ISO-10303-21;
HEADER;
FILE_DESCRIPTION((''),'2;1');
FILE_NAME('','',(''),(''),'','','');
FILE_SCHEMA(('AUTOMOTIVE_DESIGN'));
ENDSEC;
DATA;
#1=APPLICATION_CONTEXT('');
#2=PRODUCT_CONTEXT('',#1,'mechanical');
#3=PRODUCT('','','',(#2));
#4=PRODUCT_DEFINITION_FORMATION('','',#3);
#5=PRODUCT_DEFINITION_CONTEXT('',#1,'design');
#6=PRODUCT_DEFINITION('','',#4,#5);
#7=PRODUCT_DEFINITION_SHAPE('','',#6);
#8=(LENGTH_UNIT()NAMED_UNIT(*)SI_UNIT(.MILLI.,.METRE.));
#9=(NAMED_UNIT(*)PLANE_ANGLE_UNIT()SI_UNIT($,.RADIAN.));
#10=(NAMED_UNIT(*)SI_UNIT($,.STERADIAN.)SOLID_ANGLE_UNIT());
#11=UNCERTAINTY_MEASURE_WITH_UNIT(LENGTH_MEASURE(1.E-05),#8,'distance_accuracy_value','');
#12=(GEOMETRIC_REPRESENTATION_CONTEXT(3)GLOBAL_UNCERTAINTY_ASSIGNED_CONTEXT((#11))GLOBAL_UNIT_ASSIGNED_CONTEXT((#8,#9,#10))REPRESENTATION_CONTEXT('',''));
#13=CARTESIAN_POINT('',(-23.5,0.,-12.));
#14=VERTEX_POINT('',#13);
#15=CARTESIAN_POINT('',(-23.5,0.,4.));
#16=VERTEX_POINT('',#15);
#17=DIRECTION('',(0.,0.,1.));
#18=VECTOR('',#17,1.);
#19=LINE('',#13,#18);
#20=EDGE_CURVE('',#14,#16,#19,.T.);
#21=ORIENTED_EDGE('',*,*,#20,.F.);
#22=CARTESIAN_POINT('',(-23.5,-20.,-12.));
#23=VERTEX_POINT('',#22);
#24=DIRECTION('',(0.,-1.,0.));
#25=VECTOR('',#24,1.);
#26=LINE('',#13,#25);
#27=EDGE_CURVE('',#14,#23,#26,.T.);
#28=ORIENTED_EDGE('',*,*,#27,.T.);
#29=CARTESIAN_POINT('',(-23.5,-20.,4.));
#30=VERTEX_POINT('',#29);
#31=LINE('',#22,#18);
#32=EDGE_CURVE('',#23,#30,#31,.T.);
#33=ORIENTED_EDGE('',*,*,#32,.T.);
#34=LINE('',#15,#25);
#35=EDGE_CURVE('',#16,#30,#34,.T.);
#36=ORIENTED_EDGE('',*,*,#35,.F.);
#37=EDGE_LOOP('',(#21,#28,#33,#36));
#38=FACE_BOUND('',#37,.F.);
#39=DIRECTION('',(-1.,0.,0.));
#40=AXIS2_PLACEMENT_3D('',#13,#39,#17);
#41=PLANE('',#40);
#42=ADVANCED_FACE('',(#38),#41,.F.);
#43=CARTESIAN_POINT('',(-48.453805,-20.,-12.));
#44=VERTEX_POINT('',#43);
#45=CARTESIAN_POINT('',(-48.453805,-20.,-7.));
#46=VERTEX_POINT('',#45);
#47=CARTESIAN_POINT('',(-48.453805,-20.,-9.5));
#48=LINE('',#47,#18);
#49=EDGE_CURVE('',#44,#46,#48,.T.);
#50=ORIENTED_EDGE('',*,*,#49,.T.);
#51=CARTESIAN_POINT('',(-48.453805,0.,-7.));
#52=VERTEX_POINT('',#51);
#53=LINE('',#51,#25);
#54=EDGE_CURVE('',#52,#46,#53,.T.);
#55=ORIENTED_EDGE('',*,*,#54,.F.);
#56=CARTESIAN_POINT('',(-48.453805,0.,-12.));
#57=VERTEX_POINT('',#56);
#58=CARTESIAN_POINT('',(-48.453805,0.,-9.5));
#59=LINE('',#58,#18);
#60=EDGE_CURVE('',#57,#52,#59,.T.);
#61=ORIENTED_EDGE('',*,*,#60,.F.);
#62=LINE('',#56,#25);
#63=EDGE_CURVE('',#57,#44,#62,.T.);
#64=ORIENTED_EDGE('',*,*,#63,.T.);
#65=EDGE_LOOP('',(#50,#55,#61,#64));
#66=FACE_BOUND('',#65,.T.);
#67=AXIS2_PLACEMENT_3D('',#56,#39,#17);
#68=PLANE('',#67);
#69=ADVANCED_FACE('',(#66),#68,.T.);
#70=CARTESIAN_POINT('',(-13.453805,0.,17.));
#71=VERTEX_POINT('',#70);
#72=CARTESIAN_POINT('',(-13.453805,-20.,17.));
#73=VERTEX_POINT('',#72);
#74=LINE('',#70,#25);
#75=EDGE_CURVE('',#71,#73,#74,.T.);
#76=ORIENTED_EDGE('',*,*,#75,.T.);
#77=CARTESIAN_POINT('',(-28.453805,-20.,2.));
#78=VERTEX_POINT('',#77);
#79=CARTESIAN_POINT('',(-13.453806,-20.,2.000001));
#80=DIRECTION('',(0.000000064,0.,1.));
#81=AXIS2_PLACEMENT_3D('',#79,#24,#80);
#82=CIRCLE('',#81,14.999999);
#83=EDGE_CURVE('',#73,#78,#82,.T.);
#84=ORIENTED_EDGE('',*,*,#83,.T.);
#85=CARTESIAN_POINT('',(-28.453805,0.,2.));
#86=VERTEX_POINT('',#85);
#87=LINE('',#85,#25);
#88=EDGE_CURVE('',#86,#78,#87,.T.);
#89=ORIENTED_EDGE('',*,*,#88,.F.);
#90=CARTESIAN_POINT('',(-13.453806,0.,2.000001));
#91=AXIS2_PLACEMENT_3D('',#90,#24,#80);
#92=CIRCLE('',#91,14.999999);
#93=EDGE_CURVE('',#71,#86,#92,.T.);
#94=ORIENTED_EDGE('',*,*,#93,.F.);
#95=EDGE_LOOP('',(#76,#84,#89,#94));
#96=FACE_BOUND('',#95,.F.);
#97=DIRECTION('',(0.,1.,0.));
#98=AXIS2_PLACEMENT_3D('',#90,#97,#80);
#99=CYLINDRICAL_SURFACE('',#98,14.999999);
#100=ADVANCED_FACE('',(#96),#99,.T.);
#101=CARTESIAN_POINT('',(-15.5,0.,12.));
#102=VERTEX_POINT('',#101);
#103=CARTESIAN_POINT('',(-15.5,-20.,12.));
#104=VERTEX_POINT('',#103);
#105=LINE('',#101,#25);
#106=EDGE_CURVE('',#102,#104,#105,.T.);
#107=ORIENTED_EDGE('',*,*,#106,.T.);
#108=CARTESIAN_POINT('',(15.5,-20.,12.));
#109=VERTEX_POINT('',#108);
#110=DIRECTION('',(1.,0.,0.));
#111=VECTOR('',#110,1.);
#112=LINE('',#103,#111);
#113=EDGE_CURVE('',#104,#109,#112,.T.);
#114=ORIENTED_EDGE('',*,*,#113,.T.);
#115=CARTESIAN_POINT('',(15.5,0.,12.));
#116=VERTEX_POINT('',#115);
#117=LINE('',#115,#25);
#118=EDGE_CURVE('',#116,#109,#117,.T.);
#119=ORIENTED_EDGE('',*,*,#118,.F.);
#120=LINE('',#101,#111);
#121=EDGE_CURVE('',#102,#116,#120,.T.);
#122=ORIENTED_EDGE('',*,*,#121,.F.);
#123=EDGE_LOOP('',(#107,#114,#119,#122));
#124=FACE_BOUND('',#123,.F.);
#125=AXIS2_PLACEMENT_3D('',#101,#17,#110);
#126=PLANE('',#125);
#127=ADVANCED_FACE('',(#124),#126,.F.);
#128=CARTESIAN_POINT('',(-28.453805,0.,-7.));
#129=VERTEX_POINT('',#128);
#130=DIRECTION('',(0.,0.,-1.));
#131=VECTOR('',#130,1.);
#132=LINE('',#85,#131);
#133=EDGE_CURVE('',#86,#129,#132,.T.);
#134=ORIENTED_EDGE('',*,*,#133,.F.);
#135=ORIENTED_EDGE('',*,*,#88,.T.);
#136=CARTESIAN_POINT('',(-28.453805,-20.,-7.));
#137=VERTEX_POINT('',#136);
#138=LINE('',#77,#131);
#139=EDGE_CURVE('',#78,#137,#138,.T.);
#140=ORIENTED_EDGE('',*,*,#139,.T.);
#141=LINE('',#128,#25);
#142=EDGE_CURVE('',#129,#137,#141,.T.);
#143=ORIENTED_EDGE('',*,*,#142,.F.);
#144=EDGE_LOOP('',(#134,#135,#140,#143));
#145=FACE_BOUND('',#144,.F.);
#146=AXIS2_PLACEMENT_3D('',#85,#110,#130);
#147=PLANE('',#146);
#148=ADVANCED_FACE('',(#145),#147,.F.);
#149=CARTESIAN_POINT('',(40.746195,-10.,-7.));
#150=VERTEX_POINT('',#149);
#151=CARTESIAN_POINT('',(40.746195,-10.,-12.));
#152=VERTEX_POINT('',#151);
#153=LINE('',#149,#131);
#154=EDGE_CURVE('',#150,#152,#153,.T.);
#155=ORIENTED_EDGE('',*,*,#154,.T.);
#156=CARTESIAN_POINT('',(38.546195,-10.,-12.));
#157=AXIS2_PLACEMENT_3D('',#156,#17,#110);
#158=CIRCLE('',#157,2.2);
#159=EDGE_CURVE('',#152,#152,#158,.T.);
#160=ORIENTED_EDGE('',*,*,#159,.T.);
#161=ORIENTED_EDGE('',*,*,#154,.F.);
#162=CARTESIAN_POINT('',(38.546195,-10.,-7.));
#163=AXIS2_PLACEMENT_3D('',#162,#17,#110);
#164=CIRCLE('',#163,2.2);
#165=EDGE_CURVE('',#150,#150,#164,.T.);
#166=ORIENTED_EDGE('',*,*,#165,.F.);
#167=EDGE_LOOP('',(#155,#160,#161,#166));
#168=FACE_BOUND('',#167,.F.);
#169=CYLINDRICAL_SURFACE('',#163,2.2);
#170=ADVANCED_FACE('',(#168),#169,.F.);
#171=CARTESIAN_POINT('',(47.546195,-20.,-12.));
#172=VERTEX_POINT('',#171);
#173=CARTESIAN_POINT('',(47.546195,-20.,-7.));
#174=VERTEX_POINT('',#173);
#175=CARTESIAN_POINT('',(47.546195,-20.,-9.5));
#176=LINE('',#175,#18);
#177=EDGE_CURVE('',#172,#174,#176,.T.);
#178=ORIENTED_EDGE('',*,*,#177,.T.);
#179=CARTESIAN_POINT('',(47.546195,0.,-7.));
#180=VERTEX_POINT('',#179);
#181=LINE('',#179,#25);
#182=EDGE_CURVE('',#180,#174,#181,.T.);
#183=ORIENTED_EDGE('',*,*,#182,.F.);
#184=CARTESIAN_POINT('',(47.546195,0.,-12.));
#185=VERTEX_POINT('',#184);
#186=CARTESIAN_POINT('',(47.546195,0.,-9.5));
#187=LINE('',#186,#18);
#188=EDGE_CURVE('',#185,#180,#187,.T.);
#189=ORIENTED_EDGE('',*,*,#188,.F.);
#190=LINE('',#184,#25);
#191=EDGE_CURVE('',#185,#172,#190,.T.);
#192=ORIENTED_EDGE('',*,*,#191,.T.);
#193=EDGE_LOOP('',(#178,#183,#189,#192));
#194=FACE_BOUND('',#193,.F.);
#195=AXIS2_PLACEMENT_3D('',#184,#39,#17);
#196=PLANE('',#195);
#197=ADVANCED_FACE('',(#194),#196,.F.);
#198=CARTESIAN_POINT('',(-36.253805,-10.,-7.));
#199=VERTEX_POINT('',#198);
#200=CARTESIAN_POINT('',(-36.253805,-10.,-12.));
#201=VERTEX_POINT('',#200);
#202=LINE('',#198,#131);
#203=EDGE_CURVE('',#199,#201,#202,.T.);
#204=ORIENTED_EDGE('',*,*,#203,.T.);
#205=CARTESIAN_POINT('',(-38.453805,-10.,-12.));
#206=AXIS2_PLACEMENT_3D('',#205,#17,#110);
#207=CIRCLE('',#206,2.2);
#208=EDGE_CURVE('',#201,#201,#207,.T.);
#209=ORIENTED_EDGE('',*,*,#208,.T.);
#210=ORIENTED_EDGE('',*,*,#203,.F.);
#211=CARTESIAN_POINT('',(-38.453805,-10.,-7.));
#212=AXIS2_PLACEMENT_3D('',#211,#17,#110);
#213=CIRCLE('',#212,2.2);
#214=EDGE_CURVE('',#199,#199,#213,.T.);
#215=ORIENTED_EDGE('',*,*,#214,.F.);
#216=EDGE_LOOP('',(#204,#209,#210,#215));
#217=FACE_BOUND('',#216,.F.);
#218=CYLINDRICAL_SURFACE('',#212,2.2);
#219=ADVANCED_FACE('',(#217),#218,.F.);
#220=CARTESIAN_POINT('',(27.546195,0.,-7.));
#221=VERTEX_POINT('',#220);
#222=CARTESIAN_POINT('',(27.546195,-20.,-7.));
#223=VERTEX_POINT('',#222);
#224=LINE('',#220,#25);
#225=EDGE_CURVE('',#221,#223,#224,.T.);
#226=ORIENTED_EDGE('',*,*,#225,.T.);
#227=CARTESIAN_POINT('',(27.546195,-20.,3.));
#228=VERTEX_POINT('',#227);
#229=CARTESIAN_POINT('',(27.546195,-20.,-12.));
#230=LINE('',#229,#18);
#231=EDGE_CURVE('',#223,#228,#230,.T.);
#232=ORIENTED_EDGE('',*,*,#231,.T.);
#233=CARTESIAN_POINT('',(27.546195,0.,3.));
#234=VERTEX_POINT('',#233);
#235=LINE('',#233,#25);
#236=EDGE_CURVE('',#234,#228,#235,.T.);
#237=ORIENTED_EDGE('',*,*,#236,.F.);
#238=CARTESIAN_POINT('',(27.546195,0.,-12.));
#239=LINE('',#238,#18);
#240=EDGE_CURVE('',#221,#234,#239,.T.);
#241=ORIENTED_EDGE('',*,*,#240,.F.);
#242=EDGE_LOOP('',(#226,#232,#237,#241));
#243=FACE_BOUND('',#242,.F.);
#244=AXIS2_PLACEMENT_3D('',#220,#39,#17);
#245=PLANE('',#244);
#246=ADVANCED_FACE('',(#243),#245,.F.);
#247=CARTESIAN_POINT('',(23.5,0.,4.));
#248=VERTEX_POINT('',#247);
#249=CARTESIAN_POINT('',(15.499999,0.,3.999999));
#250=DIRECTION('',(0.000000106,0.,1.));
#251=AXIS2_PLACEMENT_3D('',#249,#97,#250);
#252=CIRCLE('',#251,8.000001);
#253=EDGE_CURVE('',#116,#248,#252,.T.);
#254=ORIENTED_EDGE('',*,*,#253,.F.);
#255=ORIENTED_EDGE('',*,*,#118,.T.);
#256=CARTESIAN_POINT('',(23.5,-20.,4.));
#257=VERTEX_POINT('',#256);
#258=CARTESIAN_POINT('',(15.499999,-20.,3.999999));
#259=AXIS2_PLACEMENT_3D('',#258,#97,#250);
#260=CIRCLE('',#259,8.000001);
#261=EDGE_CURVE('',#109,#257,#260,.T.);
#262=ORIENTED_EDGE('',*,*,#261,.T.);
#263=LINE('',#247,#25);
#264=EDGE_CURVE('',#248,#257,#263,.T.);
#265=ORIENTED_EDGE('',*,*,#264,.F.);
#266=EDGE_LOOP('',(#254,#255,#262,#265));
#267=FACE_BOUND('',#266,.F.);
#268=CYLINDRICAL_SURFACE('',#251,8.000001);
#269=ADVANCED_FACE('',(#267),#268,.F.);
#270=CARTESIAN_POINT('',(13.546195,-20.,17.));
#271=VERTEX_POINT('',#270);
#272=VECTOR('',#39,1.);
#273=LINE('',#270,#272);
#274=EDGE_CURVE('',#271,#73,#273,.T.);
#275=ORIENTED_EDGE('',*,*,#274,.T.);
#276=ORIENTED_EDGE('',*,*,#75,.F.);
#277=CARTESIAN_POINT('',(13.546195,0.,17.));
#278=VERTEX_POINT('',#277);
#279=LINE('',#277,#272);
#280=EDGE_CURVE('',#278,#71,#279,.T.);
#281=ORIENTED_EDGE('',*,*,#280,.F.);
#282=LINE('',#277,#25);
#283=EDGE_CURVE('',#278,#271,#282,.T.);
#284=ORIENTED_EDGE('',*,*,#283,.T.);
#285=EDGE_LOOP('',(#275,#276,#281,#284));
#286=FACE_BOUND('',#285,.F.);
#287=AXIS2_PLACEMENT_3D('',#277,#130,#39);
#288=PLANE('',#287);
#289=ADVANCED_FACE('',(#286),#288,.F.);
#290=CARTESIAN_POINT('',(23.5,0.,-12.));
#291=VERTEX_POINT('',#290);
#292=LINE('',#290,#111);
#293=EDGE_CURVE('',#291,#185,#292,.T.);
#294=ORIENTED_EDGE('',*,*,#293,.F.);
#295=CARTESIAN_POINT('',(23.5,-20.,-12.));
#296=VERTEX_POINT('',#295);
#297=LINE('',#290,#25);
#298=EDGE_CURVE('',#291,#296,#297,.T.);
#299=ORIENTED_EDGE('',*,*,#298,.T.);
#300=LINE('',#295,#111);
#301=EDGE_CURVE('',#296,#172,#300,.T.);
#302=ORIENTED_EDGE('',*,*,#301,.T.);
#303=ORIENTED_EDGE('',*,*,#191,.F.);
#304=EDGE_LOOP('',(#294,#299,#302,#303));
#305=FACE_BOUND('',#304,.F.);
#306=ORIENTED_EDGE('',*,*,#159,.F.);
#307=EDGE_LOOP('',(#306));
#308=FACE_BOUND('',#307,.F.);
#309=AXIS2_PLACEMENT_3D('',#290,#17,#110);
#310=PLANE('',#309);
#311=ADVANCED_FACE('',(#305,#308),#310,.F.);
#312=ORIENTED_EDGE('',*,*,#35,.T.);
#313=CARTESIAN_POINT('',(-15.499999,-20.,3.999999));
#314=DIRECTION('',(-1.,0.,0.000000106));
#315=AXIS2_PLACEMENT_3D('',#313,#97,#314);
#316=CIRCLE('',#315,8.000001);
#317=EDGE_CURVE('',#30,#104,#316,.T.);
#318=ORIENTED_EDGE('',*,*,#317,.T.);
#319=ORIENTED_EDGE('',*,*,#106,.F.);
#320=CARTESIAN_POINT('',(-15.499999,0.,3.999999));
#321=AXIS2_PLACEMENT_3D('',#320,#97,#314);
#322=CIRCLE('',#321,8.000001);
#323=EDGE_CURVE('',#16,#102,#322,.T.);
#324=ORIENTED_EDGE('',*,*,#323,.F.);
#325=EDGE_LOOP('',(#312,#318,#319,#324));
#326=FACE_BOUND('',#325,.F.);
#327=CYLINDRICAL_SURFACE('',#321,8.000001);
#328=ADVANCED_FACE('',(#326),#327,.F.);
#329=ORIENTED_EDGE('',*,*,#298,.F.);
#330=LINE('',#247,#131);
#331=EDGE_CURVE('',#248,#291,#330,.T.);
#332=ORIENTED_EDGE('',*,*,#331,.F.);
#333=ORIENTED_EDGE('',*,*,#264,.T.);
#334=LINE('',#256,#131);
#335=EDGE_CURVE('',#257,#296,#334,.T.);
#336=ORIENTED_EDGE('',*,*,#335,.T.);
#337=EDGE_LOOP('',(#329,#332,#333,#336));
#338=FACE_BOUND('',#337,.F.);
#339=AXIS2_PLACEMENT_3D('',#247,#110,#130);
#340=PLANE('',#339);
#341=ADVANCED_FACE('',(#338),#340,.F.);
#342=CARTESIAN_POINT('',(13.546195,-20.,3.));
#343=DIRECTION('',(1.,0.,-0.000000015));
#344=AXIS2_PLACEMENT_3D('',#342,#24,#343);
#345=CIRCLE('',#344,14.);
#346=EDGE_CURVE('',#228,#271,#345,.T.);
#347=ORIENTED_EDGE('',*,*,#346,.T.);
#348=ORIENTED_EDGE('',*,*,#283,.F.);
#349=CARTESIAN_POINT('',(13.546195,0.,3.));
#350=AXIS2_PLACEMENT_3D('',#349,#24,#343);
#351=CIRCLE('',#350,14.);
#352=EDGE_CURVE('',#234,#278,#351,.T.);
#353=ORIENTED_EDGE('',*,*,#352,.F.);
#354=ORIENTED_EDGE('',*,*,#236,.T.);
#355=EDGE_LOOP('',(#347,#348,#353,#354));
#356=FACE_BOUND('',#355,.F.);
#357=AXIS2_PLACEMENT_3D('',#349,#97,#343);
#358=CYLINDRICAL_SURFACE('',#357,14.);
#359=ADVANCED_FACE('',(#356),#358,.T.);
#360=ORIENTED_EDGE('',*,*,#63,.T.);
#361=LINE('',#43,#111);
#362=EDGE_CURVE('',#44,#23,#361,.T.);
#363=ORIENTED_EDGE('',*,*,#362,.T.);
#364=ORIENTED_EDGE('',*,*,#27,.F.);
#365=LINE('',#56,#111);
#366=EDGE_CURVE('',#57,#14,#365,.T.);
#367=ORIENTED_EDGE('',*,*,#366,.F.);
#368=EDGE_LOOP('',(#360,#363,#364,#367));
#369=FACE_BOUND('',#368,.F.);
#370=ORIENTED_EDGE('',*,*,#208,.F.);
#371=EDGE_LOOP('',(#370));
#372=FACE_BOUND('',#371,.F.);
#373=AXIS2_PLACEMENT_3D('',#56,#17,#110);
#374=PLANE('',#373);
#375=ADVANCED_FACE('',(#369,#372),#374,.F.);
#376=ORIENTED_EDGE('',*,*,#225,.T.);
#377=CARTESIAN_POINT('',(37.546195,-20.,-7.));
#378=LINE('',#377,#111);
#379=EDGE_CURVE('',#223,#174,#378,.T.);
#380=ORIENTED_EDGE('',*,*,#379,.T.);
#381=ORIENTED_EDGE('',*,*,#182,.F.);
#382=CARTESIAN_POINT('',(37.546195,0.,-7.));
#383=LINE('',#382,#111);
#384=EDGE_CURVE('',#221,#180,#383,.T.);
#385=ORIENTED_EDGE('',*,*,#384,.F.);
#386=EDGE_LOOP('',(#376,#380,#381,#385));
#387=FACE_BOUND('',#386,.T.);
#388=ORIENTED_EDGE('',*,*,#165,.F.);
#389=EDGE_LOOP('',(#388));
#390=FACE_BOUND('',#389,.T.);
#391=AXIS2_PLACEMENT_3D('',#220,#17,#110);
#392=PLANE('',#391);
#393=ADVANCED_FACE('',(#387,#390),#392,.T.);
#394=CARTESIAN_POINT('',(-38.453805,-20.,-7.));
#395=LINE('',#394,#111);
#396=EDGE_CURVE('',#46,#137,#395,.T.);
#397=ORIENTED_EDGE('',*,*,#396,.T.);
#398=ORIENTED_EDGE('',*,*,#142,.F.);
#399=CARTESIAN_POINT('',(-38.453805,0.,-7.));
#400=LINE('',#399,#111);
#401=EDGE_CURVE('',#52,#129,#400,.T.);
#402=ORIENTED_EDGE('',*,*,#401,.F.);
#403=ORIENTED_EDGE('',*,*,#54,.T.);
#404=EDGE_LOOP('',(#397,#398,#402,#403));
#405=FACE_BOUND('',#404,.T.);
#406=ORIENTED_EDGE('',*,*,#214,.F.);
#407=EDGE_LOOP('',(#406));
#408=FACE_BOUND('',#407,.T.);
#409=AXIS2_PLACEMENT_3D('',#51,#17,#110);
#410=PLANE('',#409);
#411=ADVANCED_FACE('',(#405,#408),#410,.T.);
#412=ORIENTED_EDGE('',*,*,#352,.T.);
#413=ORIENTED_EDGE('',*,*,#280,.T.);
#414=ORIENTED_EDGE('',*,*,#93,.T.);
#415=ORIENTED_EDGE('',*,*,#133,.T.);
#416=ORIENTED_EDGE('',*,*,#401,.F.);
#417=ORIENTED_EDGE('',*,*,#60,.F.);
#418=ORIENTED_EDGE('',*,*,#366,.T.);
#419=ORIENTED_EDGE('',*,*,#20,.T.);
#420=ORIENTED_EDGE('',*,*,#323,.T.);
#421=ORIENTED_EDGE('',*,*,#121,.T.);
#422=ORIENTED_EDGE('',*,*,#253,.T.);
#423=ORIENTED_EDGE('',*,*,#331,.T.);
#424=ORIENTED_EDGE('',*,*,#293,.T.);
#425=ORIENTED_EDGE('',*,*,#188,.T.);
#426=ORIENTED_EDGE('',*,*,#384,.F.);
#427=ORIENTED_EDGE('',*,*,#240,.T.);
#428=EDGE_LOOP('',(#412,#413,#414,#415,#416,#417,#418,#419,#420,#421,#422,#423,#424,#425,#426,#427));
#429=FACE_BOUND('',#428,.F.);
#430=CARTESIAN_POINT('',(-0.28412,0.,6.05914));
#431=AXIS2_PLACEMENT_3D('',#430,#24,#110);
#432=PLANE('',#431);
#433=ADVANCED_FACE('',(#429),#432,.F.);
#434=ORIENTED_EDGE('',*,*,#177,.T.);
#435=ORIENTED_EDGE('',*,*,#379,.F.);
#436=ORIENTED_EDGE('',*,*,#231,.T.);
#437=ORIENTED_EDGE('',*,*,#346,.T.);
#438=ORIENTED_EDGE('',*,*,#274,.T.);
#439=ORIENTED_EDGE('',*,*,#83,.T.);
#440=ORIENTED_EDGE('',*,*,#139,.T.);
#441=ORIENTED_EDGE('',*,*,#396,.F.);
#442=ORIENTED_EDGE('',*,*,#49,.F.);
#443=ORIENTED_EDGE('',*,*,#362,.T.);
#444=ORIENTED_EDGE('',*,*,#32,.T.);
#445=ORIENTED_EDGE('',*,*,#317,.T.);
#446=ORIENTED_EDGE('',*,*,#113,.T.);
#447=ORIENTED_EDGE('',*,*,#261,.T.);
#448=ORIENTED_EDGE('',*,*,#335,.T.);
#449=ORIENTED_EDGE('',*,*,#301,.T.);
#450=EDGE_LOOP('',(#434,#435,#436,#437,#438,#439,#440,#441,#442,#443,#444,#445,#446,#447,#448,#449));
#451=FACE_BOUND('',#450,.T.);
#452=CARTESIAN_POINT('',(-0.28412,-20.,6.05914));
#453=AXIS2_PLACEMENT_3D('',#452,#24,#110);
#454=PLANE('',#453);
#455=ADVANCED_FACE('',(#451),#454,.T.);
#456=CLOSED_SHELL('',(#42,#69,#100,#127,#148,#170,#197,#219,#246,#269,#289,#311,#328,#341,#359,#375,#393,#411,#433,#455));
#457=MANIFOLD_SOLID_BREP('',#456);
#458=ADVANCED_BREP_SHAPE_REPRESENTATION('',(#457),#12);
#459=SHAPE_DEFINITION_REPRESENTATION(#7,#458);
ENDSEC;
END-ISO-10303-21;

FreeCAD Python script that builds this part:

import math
import FreeCAD as App
import Part
import Sketcher

V = App.Vector
Q = App.Units.Quantity

doc = App.newDocument("Part")
body = doc.addObject("PartDesign::Body", "Body")

# Sketch on XZ plane
sketch1 = body.newObject("Sketcher::SketchObject", "Sketch")
sketch1.AttachmentSupport = (doc.getObject("XZ_Plane"), [""])
sketch1.MapMode = "FlatFace"
sketch1.addGeometry([
    Part.ArcOfCircle(Part.Circle(V(-15, 4, 0), V(0, 0, 1), 8), math.radians(90), math.radians(180)),  # 0
    Part.LineSegment(V(-16, 12, 0), V(16, 12, 0)),  # 1
    Part.ArcOfCircle(Part.Circle(V(15, 4, 0), V(0, 0, 1), 8), math.radians(0), math.radians(90)),  # 2
    Part.LineSegment(V(24, 4, 0), V(24, -12, 0)),  # 3
    Part.LineSegment(V(24, -12, 0), V(48, -12, 0)),  # 4
    Part.LineSegment(V(48, -12, 0), V(48, -7, 0)),  # 5
    Part.LineSegment(V(48, -7, 0), V(28, -7, 0)),  # 6
    Part.LineSegment(V(28, -7, 0), V(28, 3, 0)),  # 7
    Part.ArcOfCircle(Part.Circle(V(14, 3, 0), V(0, 0, 1), 14), math.radians(0), math.radians(90)),  # 8
    Part.LineSegment(V(14, 17, 0), V(-13, 17, 0)),  # 9
    Part.ArcOfCircle(Part.Circle(V(-13, 2, 0), V(0, 0, 1), 15), math.radians(90), math.radians(180)),  # 10
    Part.LineSegment(V(-28, 2, 0), V(-28, -7, 0)),  # 11
    Part.LineSegment(V(-28, -7, 0), V(-48, -7, 0)),  # 12
    Part.LineSegment(V(-48, -7, 0), V(-48, -12, 0)),  # 13
    Part.LineSegment(V(-48, -12, 0), V(-24, -12, 0)),  # 14
    Part.LineSegment(V(-24, -12, 0), V(-24, 4, 0)),  # 15
], False)
sketch1.addConstraint([
    Sketcher.Constraint("Tangent", 0, 1, 1, 1),
    Sketcher.Constraint("Tangent", 1, 2, 2, 2),
    Sketcher.Constraint("Tangent", 2, 1, 3, 1),
    Sketcher.Constraint("Coincident", 3, 2, 4, 1),
    Sketcher.Constraint("Coincident", 4, 2, 5, 1),
    Sketcher.Constraint("Coincident", 5, 2, 6, 1),
    Sketcher.Constraint("Coincident", 6, 2, 7, 1),
    Sketcher.Constraint("Tangent", 7, 2, 8, 1),
    Sketcher.Constraint("Tangent", 8, 2, 9, 1),
    Sketcher.Constraint("Tangent", 9, 2, 10, 1),
    Sketcher.Constraint("Tangent", 10, 2, 11, 1),
    Sketcher.Constraint("Coincident", 11, 2, 12, 1),
    Sketcher.Constraint("Coincident", 12, 2, 13, 1),
    Sketcher.Constraint("Coincident", 13, 2, 14, 1),
    Sketcher.Constraint("Coincident", 14, 2, 15, 1),
    Sketcher.Constraint("Tangent", 15, 2, 0, 2),
    Sketcher.Constraint("Horizontal", 1),
    Sketcher.Constraint("Vertical", 3),
    Sketcher.Constraint("Horizontal", 4),
    Sketcher.Constraint("Vertical", 5),
    Sketcher.Constraint("Horizontal", 6),
    Sketcher.Constraint("Vertical", 7),
    Sketcher.Constraint("Horizontal", 9),
    Sketcher.Constraint("Vertical", 11),
    Sketcher.Constraint("Horizontal", 12),
    Sketcher.Constraint("Vertical", 13),
    Sketcher.Constraint("Horizontal", 14),
    Sketcher.Constraint("Vertical", 15),
    Sketcher.Constraint("Equal", 0, 2),
    Sketcher.Constraint("Symmetric", 3, 2, 14, 2, -2),
    Sketcher.Constraint("Horizontal", 6, 2, 11, 2),
    Sketcher.Constraint("Equal", 6, 12),
    Sketcher.Constraint("Radius", 0, Q("8.000001 mm")),
    Sketcher.Constraint("Radius", 8, Q("14 mm")),
    Sketcher.Constraint("Radius", 10, Q("14.999999 mm")),
    Sketcher.Constraint("DistanceX", 1, 1, 1, 2, Q("31 mm")),
    Sketcher.Constraint("DistanceX", 6, 2, 6, 1, Q("20 mm")),
    Sketcher.Constraint("DistanceX", 9, 2, 9, 1, Q("27 mm")),
    Sketcher.Constraint("DistanceY", 3, 2, 3, 1, Q("16 mm")),
    Sketcher.Constraint("DistanceY", 5, 1, 5, 2, Q("5 mm")),
    Sketcher.Constraint("DistanceY", 7, 1, 7, 2, Q("10 mm")),
    Sketcher.Constraint("DistanceY", -1, 1, 0, 3, Q("3.999999 mm")),
    Sketcher.Constraint("DistanceX", 4, 1, 4, 2, Q("24.046195 mm")),
])
pad1 = body.newObject("PartDesign::Pad", "Pad")
pad1.Profile = sketch1
pad1.Length = 20

# Sketch on XY plane
sketch2 = body.newObject("Sketcher::SketchObject", "Sketch001")
sketch2.AttachmentSupport = (doc.getObject("XY_Plane"), [""])
sketch2.MapMode = "FlatFace"
sketch2.AttachmentOffset = App.Placement(V(0, 0, -7), App.Rotation())
sketch2.addGeometry([
    Part.Circle(V(38.5, -10, 0), V(0, 0, 1), 2.2),
    Part.Circle(V(-38.5, -10, 0), V(0, 0, 1), 2.2),
], False)
sketch2.addConstraint([
    Sketcher.Constraint("Equal", 0, 1),
    Sketcher.Constraint("Horizontal", 0, 3, 1, 3),
    Sketcher.Constraint("Diameter", 0, Q("4.4 mm")),
    Sketcher.Constraint("DistanceY", 0, 3, -1, 1, Q("10 mm")),
    Sketcher.Constraint("DistanceX", 1, 3, 0, 3, Q("77 mm")),
    Sketcher.Constraint("DistanceX", -1, 1, 0, 3, Q("38.546195 mm")),
])
pocket1 = body.newObject("PartDesign::Pocket", "Pocket")
pocket1.Profile = sketch2
pocket1.Length = 50

doc.recompute()
